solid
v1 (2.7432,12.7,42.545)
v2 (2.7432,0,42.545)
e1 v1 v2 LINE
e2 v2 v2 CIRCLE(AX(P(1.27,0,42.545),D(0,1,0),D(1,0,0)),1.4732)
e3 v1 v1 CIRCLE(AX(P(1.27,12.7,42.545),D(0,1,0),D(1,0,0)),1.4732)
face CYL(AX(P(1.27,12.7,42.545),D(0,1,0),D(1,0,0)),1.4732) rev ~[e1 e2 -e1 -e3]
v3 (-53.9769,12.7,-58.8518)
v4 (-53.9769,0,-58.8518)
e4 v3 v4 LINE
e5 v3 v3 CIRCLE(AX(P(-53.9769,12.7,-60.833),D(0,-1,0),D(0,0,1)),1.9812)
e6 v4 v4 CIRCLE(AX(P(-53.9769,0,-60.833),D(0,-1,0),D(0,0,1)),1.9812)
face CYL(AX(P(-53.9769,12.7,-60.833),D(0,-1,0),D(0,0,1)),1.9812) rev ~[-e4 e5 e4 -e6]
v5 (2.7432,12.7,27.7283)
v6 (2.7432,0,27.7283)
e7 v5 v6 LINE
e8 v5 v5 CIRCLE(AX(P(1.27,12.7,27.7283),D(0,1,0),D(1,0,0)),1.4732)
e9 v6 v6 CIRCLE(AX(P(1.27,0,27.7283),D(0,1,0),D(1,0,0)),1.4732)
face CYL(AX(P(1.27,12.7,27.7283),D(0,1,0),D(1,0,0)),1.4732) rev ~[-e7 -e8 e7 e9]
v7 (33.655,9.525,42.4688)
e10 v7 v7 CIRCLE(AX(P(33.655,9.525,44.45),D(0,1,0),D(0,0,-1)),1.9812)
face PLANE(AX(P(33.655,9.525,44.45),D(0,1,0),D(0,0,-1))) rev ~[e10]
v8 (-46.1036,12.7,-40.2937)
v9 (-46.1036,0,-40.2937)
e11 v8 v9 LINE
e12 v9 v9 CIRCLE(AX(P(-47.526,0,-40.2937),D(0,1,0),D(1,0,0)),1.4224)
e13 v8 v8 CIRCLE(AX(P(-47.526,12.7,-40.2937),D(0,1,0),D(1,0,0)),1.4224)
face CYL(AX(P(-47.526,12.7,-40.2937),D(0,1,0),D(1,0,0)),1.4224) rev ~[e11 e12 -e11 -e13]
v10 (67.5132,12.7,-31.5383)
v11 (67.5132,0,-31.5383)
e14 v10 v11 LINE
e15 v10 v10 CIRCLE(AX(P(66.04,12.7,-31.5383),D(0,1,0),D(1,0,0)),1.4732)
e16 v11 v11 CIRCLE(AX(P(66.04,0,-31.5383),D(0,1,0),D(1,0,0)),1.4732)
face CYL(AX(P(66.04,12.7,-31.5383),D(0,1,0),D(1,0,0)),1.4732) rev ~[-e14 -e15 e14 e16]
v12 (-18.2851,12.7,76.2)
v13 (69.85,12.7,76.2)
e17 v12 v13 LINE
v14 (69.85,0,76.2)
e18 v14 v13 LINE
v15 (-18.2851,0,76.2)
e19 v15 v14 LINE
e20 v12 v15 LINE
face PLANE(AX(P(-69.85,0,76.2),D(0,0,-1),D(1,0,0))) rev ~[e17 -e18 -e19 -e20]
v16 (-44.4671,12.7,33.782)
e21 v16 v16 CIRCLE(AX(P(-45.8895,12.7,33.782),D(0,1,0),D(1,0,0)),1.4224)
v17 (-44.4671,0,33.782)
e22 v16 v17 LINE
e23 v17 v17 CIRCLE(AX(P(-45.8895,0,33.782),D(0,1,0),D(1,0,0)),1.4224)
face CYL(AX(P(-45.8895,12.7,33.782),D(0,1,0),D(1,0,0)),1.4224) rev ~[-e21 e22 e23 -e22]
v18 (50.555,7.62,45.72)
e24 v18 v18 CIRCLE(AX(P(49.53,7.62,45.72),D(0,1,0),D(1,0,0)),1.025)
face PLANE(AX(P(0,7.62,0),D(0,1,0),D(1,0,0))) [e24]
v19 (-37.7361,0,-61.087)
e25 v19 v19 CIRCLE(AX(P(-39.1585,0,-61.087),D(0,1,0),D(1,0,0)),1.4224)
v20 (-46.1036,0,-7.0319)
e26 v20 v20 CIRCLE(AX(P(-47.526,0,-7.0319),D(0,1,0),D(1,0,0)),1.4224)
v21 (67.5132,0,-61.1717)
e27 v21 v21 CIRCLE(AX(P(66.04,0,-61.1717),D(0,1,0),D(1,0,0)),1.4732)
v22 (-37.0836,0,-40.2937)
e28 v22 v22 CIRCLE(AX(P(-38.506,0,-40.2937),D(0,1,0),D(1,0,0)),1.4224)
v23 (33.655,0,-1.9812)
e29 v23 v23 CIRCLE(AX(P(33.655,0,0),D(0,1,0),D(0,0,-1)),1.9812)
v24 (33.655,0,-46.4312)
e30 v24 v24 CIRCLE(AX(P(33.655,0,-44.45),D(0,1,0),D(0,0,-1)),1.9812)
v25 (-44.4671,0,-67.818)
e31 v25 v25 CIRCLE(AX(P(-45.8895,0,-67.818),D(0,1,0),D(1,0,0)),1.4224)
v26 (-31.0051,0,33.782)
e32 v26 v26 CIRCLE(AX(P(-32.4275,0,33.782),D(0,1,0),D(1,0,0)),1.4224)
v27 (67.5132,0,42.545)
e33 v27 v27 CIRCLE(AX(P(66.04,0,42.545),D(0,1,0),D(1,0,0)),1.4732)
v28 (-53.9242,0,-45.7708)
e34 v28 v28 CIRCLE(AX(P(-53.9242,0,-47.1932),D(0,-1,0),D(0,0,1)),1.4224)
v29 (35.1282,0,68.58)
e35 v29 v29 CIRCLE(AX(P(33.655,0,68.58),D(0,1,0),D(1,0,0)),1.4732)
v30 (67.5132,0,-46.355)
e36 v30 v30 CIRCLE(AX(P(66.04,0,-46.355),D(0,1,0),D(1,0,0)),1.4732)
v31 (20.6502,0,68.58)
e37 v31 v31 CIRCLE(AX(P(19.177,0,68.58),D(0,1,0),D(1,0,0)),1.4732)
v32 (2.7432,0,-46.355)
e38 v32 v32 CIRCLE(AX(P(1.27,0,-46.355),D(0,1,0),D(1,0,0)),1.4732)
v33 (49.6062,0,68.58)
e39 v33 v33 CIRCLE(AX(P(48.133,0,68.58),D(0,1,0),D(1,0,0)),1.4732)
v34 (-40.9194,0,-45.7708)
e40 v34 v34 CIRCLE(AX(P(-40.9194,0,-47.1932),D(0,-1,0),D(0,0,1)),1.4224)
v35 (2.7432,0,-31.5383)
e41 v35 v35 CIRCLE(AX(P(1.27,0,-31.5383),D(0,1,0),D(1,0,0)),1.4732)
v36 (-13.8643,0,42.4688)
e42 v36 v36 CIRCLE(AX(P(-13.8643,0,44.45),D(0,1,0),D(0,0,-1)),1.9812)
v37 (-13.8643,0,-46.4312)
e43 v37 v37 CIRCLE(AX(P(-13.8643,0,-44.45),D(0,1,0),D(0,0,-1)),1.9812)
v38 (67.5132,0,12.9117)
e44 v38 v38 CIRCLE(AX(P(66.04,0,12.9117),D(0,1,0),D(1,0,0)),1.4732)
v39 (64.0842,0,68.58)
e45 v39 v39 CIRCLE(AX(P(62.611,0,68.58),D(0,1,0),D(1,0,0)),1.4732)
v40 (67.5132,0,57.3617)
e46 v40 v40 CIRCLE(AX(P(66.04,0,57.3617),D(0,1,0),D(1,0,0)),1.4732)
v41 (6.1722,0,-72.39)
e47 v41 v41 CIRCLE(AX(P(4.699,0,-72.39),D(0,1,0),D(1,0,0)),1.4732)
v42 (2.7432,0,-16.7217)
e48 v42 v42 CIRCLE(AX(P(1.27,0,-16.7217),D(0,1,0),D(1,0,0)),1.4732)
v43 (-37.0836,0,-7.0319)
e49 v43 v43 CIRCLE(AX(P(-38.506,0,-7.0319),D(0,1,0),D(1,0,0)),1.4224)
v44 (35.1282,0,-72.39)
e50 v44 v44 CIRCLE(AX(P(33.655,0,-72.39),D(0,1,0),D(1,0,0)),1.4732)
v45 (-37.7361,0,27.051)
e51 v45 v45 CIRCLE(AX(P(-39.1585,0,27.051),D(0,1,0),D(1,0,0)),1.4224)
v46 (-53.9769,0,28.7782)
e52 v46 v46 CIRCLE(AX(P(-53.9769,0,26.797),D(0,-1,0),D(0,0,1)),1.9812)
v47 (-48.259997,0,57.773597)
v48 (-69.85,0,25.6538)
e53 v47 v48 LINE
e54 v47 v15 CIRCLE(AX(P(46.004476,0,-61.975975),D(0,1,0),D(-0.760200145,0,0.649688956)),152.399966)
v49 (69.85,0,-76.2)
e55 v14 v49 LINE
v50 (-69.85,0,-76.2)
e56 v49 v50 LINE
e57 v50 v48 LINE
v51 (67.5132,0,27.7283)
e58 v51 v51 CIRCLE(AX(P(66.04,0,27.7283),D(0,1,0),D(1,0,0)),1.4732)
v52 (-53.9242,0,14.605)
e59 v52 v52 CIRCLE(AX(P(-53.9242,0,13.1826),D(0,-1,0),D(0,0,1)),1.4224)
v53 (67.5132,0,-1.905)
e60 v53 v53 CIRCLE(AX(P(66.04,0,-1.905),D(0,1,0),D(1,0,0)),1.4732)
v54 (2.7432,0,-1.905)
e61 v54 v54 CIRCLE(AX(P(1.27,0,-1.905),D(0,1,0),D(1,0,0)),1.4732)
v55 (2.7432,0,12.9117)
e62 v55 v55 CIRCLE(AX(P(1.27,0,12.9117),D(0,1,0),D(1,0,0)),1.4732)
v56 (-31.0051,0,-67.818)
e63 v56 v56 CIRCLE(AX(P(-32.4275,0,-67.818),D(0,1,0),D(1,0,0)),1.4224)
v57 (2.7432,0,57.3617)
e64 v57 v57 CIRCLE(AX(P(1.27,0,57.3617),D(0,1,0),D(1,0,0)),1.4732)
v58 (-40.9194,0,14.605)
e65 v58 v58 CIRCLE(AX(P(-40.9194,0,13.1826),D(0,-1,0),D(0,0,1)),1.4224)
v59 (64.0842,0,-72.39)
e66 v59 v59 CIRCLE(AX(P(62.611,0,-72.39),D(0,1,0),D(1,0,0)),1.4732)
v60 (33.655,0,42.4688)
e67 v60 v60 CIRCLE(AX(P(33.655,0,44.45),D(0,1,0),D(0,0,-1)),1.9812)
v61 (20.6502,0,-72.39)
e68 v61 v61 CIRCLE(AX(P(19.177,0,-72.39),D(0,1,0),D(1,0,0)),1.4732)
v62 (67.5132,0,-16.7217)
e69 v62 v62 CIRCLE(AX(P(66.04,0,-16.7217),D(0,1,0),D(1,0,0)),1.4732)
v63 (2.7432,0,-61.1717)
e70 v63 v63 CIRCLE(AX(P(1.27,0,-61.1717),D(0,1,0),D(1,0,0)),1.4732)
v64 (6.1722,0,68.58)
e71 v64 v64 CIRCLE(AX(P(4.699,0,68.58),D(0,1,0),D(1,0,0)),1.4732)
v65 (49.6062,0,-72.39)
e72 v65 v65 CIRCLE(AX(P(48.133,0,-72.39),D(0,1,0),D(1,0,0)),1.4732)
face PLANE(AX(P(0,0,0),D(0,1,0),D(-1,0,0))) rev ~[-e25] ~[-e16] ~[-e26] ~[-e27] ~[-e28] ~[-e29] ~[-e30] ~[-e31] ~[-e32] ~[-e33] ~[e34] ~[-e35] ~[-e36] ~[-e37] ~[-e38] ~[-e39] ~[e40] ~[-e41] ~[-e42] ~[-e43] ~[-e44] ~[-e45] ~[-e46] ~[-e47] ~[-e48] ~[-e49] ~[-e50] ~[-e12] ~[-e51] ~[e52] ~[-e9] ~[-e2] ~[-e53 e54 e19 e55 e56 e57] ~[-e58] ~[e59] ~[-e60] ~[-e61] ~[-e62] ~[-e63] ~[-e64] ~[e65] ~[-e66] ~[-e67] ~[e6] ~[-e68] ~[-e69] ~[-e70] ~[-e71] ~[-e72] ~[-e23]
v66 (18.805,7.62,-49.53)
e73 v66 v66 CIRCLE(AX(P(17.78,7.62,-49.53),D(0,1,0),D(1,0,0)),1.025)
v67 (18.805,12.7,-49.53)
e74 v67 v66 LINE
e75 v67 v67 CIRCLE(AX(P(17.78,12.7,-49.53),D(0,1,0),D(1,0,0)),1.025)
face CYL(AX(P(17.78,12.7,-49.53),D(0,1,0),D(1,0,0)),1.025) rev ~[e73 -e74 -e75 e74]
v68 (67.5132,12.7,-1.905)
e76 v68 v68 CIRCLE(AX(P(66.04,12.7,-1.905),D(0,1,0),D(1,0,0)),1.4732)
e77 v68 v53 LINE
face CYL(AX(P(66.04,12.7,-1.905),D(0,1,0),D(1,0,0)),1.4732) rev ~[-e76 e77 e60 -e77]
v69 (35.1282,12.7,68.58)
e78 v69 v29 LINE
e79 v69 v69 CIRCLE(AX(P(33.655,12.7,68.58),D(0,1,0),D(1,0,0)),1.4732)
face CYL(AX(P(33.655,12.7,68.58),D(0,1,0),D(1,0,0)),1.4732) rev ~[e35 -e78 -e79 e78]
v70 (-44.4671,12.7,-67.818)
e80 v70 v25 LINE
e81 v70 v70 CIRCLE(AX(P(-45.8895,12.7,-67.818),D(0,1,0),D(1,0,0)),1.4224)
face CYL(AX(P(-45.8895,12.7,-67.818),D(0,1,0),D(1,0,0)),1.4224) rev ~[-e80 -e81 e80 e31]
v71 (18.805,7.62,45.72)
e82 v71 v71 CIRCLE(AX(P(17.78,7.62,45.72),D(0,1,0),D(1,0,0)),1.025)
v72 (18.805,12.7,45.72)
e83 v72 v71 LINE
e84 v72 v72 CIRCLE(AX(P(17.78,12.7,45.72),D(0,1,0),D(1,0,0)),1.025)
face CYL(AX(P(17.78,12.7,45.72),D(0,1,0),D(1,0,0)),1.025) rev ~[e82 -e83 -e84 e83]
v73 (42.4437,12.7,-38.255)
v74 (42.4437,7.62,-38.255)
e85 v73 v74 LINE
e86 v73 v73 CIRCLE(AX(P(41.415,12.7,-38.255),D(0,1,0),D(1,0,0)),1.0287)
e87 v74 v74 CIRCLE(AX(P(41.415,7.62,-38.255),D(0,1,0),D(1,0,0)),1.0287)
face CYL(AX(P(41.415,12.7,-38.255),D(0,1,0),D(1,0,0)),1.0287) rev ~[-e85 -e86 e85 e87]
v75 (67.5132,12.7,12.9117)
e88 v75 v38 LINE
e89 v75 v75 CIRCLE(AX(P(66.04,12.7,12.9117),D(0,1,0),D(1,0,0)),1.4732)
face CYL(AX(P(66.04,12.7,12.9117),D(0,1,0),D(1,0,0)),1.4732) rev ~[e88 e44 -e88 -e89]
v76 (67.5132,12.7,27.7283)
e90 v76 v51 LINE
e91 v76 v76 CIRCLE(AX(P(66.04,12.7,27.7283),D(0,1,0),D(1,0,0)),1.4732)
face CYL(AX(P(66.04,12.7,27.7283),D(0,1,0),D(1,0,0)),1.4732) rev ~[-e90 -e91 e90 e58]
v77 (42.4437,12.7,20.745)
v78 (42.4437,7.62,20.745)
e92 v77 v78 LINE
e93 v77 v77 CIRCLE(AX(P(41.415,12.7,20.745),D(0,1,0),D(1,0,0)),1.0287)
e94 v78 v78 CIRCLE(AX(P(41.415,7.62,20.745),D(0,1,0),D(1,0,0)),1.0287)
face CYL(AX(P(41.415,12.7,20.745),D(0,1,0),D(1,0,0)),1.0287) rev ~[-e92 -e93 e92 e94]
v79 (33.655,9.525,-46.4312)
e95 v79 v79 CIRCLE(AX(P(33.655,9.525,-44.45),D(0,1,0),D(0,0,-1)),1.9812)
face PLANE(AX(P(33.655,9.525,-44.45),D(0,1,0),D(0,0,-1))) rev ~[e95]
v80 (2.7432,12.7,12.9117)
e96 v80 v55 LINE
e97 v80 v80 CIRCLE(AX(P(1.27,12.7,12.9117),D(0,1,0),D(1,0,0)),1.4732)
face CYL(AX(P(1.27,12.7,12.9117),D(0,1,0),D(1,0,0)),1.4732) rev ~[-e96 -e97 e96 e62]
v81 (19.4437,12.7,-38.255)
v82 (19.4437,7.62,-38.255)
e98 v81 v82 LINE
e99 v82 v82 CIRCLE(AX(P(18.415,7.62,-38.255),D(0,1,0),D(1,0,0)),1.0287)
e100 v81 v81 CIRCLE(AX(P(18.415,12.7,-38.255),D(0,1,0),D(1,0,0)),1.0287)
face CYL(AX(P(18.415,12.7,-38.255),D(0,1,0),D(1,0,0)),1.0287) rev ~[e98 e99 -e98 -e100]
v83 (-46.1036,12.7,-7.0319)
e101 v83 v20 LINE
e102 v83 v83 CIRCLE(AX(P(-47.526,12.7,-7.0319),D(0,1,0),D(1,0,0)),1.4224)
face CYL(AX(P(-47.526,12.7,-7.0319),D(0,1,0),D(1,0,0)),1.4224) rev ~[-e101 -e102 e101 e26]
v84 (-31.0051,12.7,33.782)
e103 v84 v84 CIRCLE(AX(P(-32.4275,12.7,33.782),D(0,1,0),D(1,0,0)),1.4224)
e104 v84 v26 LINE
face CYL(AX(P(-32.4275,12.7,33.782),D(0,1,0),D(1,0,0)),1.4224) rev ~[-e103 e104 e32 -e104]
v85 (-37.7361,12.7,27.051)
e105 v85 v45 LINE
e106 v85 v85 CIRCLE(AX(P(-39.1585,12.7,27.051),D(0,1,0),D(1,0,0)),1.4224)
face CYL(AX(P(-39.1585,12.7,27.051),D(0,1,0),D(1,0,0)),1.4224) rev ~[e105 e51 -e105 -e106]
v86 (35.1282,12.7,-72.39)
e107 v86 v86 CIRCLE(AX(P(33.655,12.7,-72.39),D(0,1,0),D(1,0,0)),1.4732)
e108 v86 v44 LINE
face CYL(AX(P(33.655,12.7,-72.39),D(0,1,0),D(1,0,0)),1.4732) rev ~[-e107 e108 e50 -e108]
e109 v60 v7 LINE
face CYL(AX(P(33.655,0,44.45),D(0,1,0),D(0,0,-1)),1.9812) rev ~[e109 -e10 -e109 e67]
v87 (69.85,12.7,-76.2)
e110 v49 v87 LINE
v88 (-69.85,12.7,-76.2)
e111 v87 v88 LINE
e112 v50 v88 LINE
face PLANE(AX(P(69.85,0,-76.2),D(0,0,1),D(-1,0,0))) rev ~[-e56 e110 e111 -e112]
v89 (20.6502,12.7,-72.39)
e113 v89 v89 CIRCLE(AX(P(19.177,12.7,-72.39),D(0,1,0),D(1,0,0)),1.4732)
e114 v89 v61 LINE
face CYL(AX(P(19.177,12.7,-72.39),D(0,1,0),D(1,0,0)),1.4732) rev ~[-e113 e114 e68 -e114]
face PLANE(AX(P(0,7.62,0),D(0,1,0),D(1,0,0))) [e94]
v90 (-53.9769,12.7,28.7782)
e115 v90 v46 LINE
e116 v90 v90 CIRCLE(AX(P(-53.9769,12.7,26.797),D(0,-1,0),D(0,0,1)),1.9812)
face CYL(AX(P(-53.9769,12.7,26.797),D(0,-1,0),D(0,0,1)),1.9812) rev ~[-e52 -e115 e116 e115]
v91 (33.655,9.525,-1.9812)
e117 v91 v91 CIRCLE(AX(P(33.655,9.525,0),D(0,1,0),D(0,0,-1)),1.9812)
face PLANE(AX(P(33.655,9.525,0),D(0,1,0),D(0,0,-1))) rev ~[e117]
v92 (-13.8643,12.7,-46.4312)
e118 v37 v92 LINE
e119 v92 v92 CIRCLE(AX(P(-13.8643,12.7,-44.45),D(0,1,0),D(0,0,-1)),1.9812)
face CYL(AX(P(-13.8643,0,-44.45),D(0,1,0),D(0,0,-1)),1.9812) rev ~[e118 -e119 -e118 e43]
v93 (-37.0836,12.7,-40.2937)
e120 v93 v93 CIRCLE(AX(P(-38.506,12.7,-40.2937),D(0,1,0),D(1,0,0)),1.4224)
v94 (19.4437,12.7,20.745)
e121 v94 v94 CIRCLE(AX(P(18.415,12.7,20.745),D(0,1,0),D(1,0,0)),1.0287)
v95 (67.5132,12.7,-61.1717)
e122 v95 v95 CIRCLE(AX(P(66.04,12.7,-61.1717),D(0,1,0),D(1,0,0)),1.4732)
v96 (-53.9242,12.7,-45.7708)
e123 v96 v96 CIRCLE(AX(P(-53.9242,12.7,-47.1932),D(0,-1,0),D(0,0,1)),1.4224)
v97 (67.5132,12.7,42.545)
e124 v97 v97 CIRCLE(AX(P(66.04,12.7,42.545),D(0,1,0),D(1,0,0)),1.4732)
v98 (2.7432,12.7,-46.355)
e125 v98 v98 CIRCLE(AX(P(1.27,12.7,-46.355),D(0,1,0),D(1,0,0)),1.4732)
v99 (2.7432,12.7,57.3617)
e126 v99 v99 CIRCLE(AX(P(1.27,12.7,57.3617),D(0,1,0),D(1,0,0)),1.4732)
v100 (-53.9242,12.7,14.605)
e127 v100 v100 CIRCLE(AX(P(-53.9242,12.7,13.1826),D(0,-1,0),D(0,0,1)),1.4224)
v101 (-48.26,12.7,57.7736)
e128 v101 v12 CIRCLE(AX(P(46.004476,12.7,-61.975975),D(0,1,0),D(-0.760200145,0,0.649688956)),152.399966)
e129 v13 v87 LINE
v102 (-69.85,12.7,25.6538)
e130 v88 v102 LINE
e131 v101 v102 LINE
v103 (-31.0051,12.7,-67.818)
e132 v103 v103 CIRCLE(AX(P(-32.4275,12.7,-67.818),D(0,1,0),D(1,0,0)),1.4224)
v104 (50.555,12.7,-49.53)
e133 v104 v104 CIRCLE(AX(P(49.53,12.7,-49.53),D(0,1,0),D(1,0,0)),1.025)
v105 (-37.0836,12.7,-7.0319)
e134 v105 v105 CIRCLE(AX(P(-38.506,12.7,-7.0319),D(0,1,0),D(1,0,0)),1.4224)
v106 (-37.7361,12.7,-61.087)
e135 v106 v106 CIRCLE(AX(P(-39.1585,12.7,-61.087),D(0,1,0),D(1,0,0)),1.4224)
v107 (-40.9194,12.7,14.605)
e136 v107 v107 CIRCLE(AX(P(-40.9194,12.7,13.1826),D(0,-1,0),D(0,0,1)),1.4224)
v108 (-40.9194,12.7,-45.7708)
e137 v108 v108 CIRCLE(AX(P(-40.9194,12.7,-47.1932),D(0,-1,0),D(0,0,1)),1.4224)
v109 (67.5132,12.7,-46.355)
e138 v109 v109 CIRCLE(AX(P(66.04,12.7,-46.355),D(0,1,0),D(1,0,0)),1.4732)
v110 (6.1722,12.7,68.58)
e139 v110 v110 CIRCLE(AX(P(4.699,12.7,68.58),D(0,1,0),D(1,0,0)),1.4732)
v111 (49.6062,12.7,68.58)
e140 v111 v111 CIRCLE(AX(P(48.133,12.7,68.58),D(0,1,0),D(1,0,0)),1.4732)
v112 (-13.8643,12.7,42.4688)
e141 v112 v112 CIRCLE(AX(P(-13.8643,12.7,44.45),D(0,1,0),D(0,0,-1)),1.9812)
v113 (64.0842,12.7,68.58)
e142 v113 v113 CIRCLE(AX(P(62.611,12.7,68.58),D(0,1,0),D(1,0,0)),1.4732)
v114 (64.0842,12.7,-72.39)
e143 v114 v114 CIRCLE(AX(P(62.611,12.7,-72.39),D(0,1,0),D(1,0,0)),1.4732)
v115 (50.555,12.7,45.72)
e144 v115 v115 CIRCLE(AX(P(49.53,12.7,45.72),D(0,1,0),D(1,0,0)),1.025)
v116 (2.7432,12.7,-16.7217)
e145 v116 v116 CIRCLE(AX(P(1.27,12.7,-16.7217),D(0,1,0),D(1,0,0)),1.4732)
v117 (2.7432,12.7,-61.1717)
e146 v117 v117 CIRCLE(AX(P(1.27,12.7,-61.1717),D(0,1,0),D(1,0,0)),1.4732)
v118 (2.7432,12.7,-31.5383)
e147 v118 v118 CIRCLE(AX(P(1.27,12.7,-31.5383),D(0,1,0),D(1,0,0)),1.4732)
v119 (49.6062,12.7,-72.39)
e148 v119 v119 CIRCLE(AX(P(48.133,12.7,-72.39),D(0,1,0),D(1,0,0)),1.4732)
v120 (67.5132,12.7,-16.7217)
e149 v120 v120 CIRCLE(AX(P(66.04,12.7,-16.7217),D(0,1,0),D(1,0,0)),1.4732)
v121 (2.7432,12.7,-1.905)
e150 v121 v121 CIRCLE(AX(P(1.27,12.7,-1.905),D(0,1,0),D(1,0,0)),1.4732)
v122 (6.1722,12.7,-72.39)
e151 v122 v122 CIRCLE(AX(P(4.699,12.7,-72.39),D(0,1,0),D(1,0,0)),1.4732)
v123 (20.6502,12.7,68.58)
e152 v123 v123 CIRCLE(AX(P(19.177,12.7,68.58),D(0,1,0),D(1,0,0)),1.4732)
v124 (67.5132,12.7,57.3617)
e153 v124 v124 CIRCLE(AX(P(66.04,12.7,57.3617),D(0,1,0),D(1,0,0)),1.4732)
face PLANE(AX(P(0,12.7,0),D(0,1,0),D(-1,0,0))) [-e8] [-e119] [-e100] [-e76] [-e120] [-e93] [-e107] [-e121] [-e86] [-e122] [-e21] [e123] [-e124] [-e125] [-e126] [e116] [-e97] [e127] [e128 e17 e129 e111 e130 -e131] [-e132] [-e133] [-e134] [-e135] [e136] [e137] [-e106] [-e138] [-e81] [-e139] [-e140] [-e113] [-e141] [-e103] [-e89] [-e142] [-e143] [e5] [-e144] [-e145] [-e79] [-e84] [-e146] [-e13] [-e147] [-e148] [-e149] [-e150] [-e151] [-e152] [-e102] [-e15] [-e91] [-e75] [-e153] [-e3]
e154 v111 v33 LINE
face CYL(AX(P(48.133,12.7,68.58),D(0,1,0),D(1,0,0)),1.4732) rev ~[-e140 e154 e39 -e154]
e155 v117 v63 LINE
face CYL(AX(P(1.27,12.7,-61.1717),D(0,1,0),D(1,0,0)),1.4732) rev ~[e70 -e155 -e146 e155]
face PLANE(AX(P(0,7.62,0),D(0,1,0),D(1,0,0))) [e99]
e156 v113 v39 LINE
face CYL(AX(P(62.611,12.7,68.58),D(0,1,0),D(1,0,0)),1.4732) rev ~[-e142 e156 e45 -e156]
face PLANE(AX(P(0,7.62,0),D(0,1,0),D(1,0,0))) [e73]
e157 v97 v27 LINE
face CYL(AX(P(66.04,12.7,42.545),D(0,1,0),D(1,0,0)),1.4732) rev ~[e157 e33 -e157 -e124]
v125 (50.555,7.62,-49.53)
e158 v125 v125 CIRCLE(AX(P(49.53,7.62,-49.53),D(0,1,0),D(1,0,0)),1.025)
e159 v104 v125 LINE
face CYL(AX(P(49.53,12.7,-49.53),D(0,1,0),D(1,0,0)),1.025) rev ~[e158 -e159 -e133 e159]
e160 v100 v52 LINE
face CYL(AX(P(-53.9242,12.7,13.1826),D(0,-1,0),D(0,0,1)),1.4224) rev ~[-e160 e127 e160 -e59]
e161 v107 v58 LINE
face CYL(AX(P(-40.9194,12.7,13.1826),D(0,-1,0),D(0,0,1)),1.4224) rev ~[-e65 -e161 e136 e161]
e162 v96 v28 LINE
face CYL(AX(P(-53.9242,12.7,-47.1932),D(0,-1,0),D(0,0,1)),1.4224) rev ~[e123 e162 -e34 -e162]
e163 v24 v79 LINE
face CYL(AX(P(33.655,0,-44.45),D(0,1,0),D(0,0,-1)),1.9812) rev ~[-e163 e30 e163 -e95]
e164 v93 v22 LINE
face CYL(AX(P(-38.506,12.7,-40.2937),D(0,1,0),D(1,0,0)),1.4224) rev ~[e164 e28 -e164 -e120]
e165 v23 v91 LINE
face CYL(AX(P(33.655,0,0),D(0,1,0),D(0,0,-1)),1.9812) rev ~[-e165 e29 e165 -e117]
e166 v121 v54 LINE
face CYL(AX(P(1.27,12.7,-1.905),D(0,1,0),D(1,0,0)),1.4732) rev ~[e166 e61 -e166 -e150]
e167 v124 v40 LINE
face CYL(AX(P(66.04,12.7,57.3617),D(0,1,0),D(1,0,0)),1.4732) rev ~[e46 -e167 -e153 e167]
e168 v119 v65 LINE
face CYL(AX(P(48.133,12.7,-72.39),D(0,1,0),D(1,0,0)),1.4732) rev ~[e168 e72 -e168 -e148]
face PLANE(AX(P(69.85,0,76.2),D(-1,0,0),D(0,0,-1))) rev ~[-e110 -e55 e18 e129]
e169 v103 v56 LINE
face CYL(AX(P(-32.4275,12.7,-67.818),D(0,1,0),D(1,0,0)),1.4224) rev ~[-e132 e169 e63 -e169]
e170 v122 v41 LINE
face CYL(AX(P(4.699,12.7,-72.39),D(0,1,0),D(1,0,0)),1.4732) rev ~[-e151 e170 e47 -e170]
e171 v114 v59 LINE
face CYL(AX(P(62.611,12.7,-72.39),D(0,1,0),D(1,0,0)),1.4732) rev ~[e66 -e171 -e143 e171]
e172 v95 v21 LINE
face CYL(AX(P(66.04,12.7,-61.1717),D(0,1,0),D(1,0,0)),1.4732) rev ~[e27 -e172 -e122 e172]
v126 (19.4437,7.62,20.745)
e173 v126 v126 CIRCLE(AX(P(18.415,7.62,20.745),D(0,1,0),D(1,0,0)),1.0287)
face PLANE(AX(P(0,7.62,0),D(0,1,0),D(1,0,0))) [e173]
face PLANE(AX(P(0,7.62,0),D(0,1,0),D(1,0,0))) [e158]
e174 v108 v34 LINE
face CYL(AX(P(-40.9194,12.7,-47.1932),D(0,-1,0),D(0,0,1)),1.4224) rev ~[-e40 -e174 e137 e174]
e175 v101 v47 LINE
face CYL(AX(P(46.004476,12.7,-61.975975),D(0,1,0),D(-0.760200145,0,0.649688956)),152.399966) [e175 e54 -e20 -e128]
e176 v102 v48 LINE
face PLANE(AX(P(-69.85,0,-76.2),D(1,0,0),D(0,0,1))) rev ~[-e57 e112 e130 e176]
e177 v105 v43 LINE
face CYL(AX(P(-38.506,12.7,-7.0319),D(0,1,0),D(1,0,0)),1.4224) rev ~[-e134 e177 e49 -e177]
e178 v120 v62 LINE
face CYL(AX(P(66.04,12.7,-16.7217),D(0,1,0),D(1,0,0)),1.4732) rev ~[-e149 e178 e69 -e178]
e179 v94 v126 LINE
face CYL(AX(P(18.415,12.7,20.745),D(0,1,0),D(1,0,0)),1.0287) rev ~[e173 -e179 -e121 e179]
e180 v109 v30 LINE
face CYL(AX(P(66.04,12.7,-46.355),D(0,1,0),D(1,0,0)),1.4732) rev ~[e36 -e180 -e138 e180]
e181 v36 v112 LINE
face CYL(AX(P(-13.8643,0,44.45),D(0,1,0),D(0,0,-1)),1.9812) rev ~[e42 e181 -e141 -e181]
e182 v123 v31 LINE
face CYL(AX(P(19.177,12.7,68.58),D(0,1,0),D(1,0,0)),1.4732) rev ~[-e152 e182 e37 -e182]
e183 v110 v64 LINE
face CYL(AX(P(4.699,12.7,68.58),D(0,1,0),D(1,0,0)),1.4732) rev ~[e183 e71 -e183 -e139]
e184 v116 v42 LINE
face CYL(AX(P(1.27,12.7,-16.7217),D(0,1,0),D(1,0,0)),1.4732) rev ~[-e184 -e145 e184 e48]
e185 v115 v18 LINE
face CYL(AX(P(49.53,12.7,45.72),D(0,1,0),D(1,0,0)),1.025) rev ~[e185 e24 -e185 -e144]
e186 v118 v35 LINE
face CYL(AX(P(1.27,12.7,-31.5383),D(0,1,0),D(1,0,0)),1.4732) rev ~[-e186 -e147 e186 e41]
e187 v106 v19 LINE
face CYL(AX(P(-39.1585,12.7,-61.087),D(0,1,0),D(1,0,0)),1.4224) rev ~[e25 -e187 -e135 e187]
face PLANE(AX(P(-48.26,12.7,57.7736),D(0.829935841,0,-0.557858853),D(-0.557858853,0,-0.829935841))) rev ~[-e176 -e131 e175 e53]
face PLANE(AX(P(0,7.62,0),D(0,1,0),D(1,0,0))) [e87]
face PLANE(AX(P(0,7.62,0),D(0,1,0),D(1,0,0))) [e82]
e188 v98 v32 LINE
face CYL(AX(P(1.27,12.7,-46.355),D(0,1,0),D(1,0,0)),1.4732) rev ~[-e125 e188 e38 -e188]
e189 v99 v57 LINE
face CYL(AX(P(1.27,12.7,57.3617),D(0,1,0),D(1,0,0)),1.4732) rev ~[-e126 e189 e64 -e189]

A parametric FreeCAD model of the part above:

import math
import FreeCAD as App
import Part
import Sketcher

V = App.Vector
Q = App.Units.Quantity


def add_polygon(sketch, points):
    """Adds a closed chain of lines whose ends are joined by coincident constraints."""
    first, n = sketch.GeometryCount, len(points)
    for a, b in zip(points, points[1:] + points[:1]):
        sketch.addGeometry(Part.LineSegment(App.Vector(*a, 0), App.Vector(*b, 0)), False)
    for i in range(n):
        sketch.addConstraint(Sketcher.Constraint("Coincident", first + i, 2, first + (i + 1) % n, 1))

doc = App.newDocument("Part")
body = doc.addObject("PartDesign::Body", "Body")

sketch1 = doc.addObject("Sketcher::SketchObject", "Sketch")
body.addObject(sketch1)
sketch1.AttachmentSupport = (doc.XZ_Plane, [""])
sketch1.MapMode = "FlatFace"
add_polygon(sketch1, [(-70, -76), (-70, 76), (70, 76), (70, -76)])
sketch1.addConstraint([
    Sketcher.Constraint("Vertical", 0),
    Sketcher.Constraint("Horizontal", 1),
    Sketcher.Constraint("Vertical", 2),
    Sketcher.Constraint("Horizontal", 3),
    Sketcher.Constraint("Symmetric", 0, 2, 2, 2, -1, 1),
    Sketcher.Constraint("DistanceY", 0, 1, 0, 2, Q("6 in")),
    Sketcher.Constraint("DistanceX", 1, 1, 1, 2, Q("5.5 in")),
])
pad1 = doc.addObject("PartDesign::Pad", "Pad")
body.addObject(pad1)
pad1.Profile = sketch1
pad1.Length = Q("0.5 in")
pad1.Reversed = True

sketch2 = doc.addObject("Sketcher::SketchObject", "Sketch001")
body.addObject(sketch2)
sketch2.AttachmentSupport = (doc.XZ_Plane, [""])
sketch2.MapMode = "FlatFace"
sketch2.AttachmentOffset = App.Placement(V(0, 0, -0.5 * 25.4), App.Rotation())
sketch2.addGeometry([
    Part.Circle(V(-47.5, -7, 0), V(0, 0, 1), 1.4),
    Part.Circle(V(-38.5, -7, 0), V(0, 0, 1), 1.4),
    Part.Circle(V(-47.5, -40.3, 0), V(0, 0, 1), 1.4),
    Part.Circle(V(-38.5, -40.3, 0), V(0, 0, 1), 1.4),
    Part.Circle(V(-32.4, 33.8, 0), V(0, 0, 1), 1.4),
    Part.Circle(V(-39.2, 27.1, 0), V(0, 0, 1), 1.4),
    Part.Circle(V(-45.9, 33.8, 0), V(0, 0, 1), 1.4),
    Part.Circle(V(-45.9, -67.8, 0), V(0, 0, 1), 1.4),
    Part.Circle(V(-39.2, -61.1, 0), V(0, 0, 1), 1.4),
    Part.Circle(V(-32.4, -67.8, 0), V(0, 0, 1), 1.4),
], False)
sketch2.addConstraint([
    Sketcher.Constraint("Equal", 0, 1),
    Sketcher.Constraint("Equal", 1, 2),
    Sketcher.Constraint("Equal", 2, 3),
    Sketcher.Constraint("Equal", 3, 4),
    Sketcher.Constraint("Equal", 4, 5),
    Sketcher.Constraint("Equal", 5, 6),
    Sketcher.Constraint("Equal", 6, 7),
    Sketcher.Constraint("Equal", 7, 8),
    Sketcher.Constraint("Equal", 8, 9),
    Sketcher.Constraint("Horizontal", 0, 3, 1, 3),
    Sketcher.Constraint("Horizontal", 2, 3, 3, 3),
    Sketcher.Constraint("Horizontal", 4, 3, 6, 3),
    Sketcher.Constraint("Horizontal", 7, 3, 9, 3),
    Sketcher.Constraint("Vertical", 0, 3, 2, 3),
    Sketcher.Constraint("Vertical", 1, 3, 3, 3),
    Sketcher.Constraint("Vertical", 6, 3, 7, 3),
    Sketcher.Constraint("Vertical", 5, 3, 8, 3),
    Sketcher.Constraint("Vertical", 4, 3, 9, 3),
    Sketcher.Constraint("Diameter", 0, Q("0.112 in")),
    Sketcher.Constraint("DistanceY", -1, 1, 4, 3, Q("1.33 in")),
    Sketcher.Constraint("DistanceY", 7, 3, -1, 1, Q("2.67 in")),
    Sketcher.Constraint("DistanceX", 6, 3, 4, 3, Q("0.53 in")),
    Sketcher.Constraint("DistanceY", -1, 1, 5, 3, Q("1.065 in")),
    Sketcher.Constraint("DistanceY", 8, 3, -1, 1, Q("2.405 in")),
    Sketcher.Constraint("DistanceX", 5, 3, 4, 3, Q("0.265 in")),
    Sketcher.Constraint("DistanceX", 0, 3, -1, 1, Q("1.8711 in")),
    Sketcher.Constraint("DistanceX", 1, 3, 4, 3, Q("0.2393 in")),
    Sketcher.Constraint("DistanceY", 0, 3, -1, 1, Q("7.032 mm")),
    Sketcher.Constraint("DistanceX", 1, 3, -1, 1, Q("38.506 mm")),
    Sketcher.Constraint("DistanceY", 2, 3, -1, 1, Q("40.2937 mm")),
])
pocket1 = doc.addObject("PartDesign::Pocket", "Pocket")
body.addObject(pocket1)
pocket1.Profile = sketch2
pocket1.Type = "ThroughAll"
pocket1.Reversed = True

sketch3 = doc.addObject("Sketcher::SketchObject", "Sketch002")
body.addObject(sketch3)
sketch3.AttachmentSupport = (doc.XZ_Plane, [""])
sketch3.MapMode = "FlatFace"
sketch3.AttachmentOffset = App.Placement(V(0, 0, -0.5 * 25.4), App.Rotation())
sketch3.addGeometry([
    Part.ArcOfCircle(Part.Circle(V(46, -62, 0), V(0, 0, 1), 152), math.radians(115), math.radians(139)),
    Part.LineSegment(V(-70, 37, 0), V(-70, 76, 0)),
    Part.LineSegment(V(-70, 76, 0), V(-18, 76, 0)),
], False)
sketch3.addConstraint([
    Sketcher.Constraint("Coincident", 0, 2, 1, 1),
    Sketcher.Constraint("Coincident", 1, 2, 2, 1),
    Sketcher.Constraint("Coincident", 2, 2, 0, 1),
    Sketcher.Constraint("Vertical", 1),
    Sketcher.Constraint("Horizontal", 2),
    Sketcher.Constraint("Radius", 0, Q("6 in")),
    Sketcher.Constraint("DistanceY", -1, 1, 1, 2, Q("3 in")),
    Sketcher.Constraint("DistanceY", 0, 3, -1, 1, Q("2.44 in")),
    Sketcher.Constraint("DistanceX", 0, 2, -1, 1, Q("2.75 in")),
    Sketcher.Constraint("DistanceX", 2, 1, 2, 2, Q("51.565 mm")),
])
pocket2 = doc.addObject("PartDesign::Pocket", "Pocket001")
body.addObject(pocket2)
pocket2.Profile = sketch3
pocket2.Type = "ThroughAll"
pocket2.Reversed = True

sketch4 = doc.addObject("Sketcher::SketchObject", "Sketch003")
body.addObject(sketch4)
sketch4.AttachmentSupport = (doc.XZ_Plane, [""])
sketch4.MapMode = "FlatFace"
sketch4.AttachmentOffset = App.Placement(V(0, 0, -0.5 * 25.4), App.Rotation())
sketch4.addGeometry([
    Part.Circle(V(62.6, -72.4, 0), V(0, 0, 1), 1.5),
    Part.Circle(V(33.7, -72.4, 0), V(0, 0, 1), 1.5),
    Part.Circle(V(48.1, -72.4, 0), V(0, 0, 1), 1.5),
    Part.Circle(V(19.2, -72.4, 0), V(0, 0, 1), 1.5),
    Part.Circle(V(4.7, -72.4, 0), V(0, 0, 1), 1.5),
    Part.Circle(V(62.6, 68.6, 0), V(0, 0, 1), 1.5),
    Part.Circle(V(48.1, 68.6, 0), V(0, 0, 1), 1.5),
    Part.Circle(V(33.7, 68.6, 0), V(0, 0, 1), 1.5),
    Part.Circle(V(19.2, 68.6, 0), V(0, 0, 1), 1.5),
    Part.Circle(V(4.7, 68.6, 0), V(0, 0, 1), 1.5),
], False)
sketch4.addConstraint([
    Sketcher.Constraint("Equal", 0, 1),
    Sketcher.Constraint("Equal", 1, 2),
    Sketcher.Constraint("Equal", 2, 3),
    Sketcher.Constraint("Equal", 3, 4),
    Sketcher.Constraint("Equal", 4, 5),
    Sketcher.Constraint("Equal", 5, 6),
    Sketcher.Constraint("Equal", 6, 7),
    Sketcher.Constraint("Equal", 7, 8),
    Sketcher.Constraint("Equal", 8, 9),
    Sketcher.Constraint("Horizontal", 0, 3, 1, 3),
    Sketcher.Constraint("Horizontal", 1, 3, 2, 3),
    Sketcher.Constraint("Horizontal", 2, 3, 3, 3),
    Sketcher.Constraint("Horizontal", 3, 3, 4, 3),
    Sketcher.Constraint("Horizontal", 5, 3, 6, 3),
    Sketcher.Constraint("Horizontal", 6, 3, 7, 3),
    Sketcher.Constraint("Horizontal", 7, 3, 8, 3),
    Sketcher.Constraint("Horizontal", 8, 3, 9, 3),
    Sketcher.Constraint("Vertical", 0, 3, 5, 3),
    Sketcher.Constraint("Vertical", 2, 3, 6, 3),
    Sketcher.Constraint("Vertical", 1, 3, 7, 3),
    Sketcher.Constraint("Vertical", 3, 3, 8, 3),
    Sketcher.Constraint("Vertical", 4, 3, 9, 3),
    Sketcher.Constraint("Diameter", 0, Q("0.116 in")),
    Sketcher.Constraint("DistanceY", -1, 1, 5, 3, Q("2.7 in")),
    Sketcher.Constraint("DistanceY", 0, 3, -1, 1, Q("2.85 in")),
    Sketcher.Constraint("DistanceX", 1, 3, 0, 3, Q("1.14 in")),
    Sketcher.Constraint("DistanceX", 2, 3, 0, 3, Q("0.57 in")),
    Sketcher.Constraint("DistanceX", 3, 3, 1, 3, Q("0.57 in")),
    Sketcher.Constraint("DistanceX", 4, 3, 3, 3, Q("0.57 in")),
    Sketcher.Constraint("DistanceX", -1, 1, 0, 3, Q("2.465 in")),
])
pocket3 = doc.addObject("PartDesign::Pocket", "Pocket002")
body.addObject(pocket3)
pocket3.Profile = sketch4
pocket3.Type = "ThroughAll"
pocket3.Reversed = True

sketch5 = doc.addObject("Sketcher::SketchObject", "Sketch004")
body.addObject(sketch5)
sketch5.AttachmentSupport = (doc.XZ_Plane, [""])
sketch5.MapMode = "FlatFace"
sketch5.AttachmentOffset = App.Placement(V(0, 0, -0.5 * 25.4), App.Rotation())
sketch5.addGeometry([
    Part.Circle(V(1.3, 42.5, 0), V(0, 0, 1), 1.5),
    Part.Circle(V(1.3, 12.9, 0), V(0, 0, 1), 1.5),
    Part.Circle(V(1.3, -16.7, 0), V(0, 0, 1), 1.5),
    Part.Circle(V(1.3, -46.4, 0), V(0, 0, 1), 1.5),
    Part.Circle(V(66, -61.2, 0), V(0, 0, 1), 1.5),
    Part.Circle(V(66, -31.5, 0), V(0, 0, 1), 1.5),
    Part.Circle(V(66, -1.9, 0), V(0, 0, 1), 1.5),
    Part.Circle(V(66, 27.7, 0), V(0, 0, 1), 1.5),
    Part.Circle(V(66, 57.4, 0), V(0, 0, 1), 1.5),
    Part.Circle(V(66, 42.5, 0), V(0, 0, 1), 1.5),
    Part.Circle(V(66, 12.9, 0), V(0, 0, 1), 1.5),
    Part.Circle(V(66, -16.7, 0), V(0, 0, 1), 1.5),
    Part.Circle(V(66, -46.4, 0), V(0, 0, 1), 1.5),
    Part.Circle(V(1.3, -61.2, 0), V(0, 0, 1), 1.5),
    Part.Circle(V(1.3, -31.5, 0), V(0, 0, 1), 1.5),
    Part.Circle(V(1.3, -1.9, 0), V(0, 0, 1), 1.5),
    Part.Circle(V(1.3, 27.7, 0), V(0, 0, 1), 1.5),
    Part.Circle(V(1.3, 57.4, 0), V(0, 0, 1), 1.5),
    Part.Circle(V(62.6, -72.4, 0), V(0, 0, 1), 1.5),
], False)
sketch5.addConstraint([
    Sketcher.Constraint("Equal", 0, 1),
    Sketcher.Constraint("Equal", 1, 2),
    Sketcher.Constraint("Equal", 2, 3),
    Sketcher.Constraint("Equal", 3, 4),
    Sketcher.Constraint("Equal", 4, 5),
    Sketcher.Constraint("Equal", 5, 6),
    Sketcher.Constraint("Equal", 6, 7),
    Sketcher.Constraint("Equal", 7, 8),
    Sketcher.Constraint("Equal", 8, 9),
    Sketcher.Constraint("Equal", 9, 10),
    Sketcher.Constraint("Equal", 10, 11),
    Sketcher.Constraint("Equal", 11, 12),
    Sketcher.Constraint("Equal", 12, 13),
    Sketcher.Constraint("Equal", 13, 14),
    Sketcher.Constraint("Equal", 14, 15),
    Sketcher.Constraint("Equal", 15, 16),
    Sketcher.Constraint("Equal", 16, 17),
    Sketcher.Constraint("Equal", 17, 18),
    Sketcher.Constraint("Horizontal", 0, 3, 9, 3),
    Sketcher.Constraint("Horizontal", 1, 3, 10, 3),
    Sketcher.Constraint("Horizontal", 2, 3, 11, 3),
    Sketcher.Constraint("Horizontal", 3, 3, 12, 3),
    Sketcher.Constraint("Horizontal", 4, 3, 13, 3),
    Sketcher.Constraint("Horizontal", 5, 3, 14, 3),
    Sketcher.Constraint("Horizontal", 6, 3, 15, 3),
    Sketcher.Constraint("Horizontal", 7, 3, 16, 3),
    Sketcher.Constraint("Horizontal", 8, 3, 17, 3),
    Sketcher.Constraint("Vertical", 0, 3, 1, 3),
    Sketcher.Constraint("Vertical", 1, 3, 2, 3),
    Sketcher.Constraint("Vertical", 2, 3, 3, 3),
    Sketcher.Constraint("Vertical", 4, 3, 5, 3),
    Sketcher.Constraint("Vertical", 5, 3, 6, 3),
    Sketcher.Constraint("Vertical", 6, 3, 7, 3),
    Sketcher.Constraint("Vertical", 7, 3, 8, 3),
    Sketcher.Constraint("Vertical", 8, 3, 9, 3),
    Sketcher.Constraint("Vertical", 9, 3, 10, 3),
    Sketcher.Constraint("Vertical", 10, 3, 11, 3),
    Sketcher.Constraint("Vertical", 11, 3, 12, 3),
    Sketcher.Constraint("Vertical", 3, 3, 13, 3),
    Sketcher.Constraint("Vertical", 13, 3, 14, 3),
    Sketcher.Constraint("Vertical", 14, 3, 15, 3),
    Sketcher.Constraint("Vertical", 15, 3, 16, 3),
    Sketcher.Constraint("Vertical", 16, 3, 17, 3),
    Sketcher.Constraint("Diameter", 0, Q("0.116 in")),
    Sketcher.Constraint("DistanceX", -1, 1, 4, 3, Q("2.6 in")),
    Sketcher.Constraint("DistanceY", 3, 3, 0, 3, Q("3.5 in")),
    Sketcher.Constraint("DistanceY", 5, 3, 8, 3, Q("3.5 in")),
    Sketcher.Constraint("DistanceX", -1, 1, 0, 3, Q("0.05 in")),
    Sketcher.Constraint("DistanceY", 18, 3, -1, 1, Q("2.85 in")),
    Sketcher.Constraint("DistanceY", 4, 3, 2, 3, Q("1.75 in")),
    Sketcher.Constraint("DistanceY", 5, 3, 1, 3, Q("1.75 in")),
    Sketcher.Constraint("DistanceY", 3, 3, 6, 3, Q("1.75 in")),
    Sketcher.Constraint("DistanceY", 2, 3, 7, 3, Q("1.75 in")),
    Sketcher.Constraint("DistanceY", -1, 1, 0, 3, Q("1.675 in")),
    Sketcher.Constraint("DistanceX", -1, 1, 18, 3, Q("2.465 in")),
    Sketcher.Constraint("DistanceY", -1, 1, 1, 3, Q("12.9117 mm")),
    Sketcher.Constraint("DistanceY", 2, 3, -1, 1, Q("16.7217 mm")),
])
pocket4 = doc.addObject("PartDesign::Pocket", "Pocket003")
body.addObject(pocket4)
pocket4.Profile = sketch5
pocket4.Type = "ThroughAll"
pocket4.Reversed = True

sketch6 = doc.addObject("Sketcher::SketchObject", "Sketch005")
body.addObject(sketch6)
sketch6.AttachmentSupport = (doc.XZ_Plane, [""])
sketch6.MapMode = "FlatFace"
sketch6.addGeometry([
    Part.Circle(V(-13.9, 44.5, 0), V(0, 0, 1), 2),
    Part.Circle(V(-13.9, -44.5, 0), V(0, 0, 1), 2),
], False)
sketch6.addConstraint([
    Sketcher.Constraint("Equal", 0, 1),
    Sketcher.Constraint("Symmetric", 0, 3, 1, 3, -1),
    Sketcher.Constraint("Diameter", 0, Q("0.156 in")),
    Sketcher.Constraint("DistanceY", 1, 3, 0, 3, Q("3.5 in")),
    Sketcher.Constraint("DistanceX", 0, 3, -1, 1, Q("13.8643 mm")),
])
doc.recompute()
hole = doc.addObject("PartDesign::Hole", "Hole")
body.addObject(hole)
hole.Profile = sketch6
hole.ThreadType = "None"
hole.Diameter = Q("0.156 in")
hole.DepthType = "ThroughAll"

sketch7 = doc.addObject("Sketcher::SketchObject", "Sketch006")
body.addObject(sketch7)
sketch7.AttachmentSupport = (doc.XZ_Plane, [""])
sketch7.MapMode = "FlatFace"
sketch7.addGeometry([
    Part.Circle(V(33.7, -44.5, 0), V(0, 0, 1), 2),
    Part.Circle(V(33.7, 44.5, 0), V(0, 0, 1), 2),
    Part.Circle(V(33.7, 0, 0), V(0, 0, 1), 2),
], False)
sketch7.addConstraint([
    Sketcher.Constraint("Equal", 0, 1),
    Sketcher.Constraint("Equal", 1, 2),
    Sketcher.Constraint("Symmetric", 0, 3, 1, 3, -1),
    Sketcher.Constraint("PointOnObject", 2, 3, -1),
    Sketcher.Constraint("Vertical", 1, 3, 2, 3),
    Sketcher.Constraint("Diameter", 0, Q("0.156 in")),
    Sketcher.Constraint("DistanceY", 0, 3, 1, 3, Q("3.5 in")),
    Sketcher.Constraint("DistanceX", -1, 1, 0, 3, Q("1.325 in")),
])
doc.recompute()
hole2 = doc.addObject("PartDesign::Hole", "Hole001")
body.addObject(hole2)
hole2.Profile = sketch7
hole2.ThreadType = "None"
hole2.Diameter = Q("0.156 in")
hole2.DepthType = "Dimension"
hole2.Depth = Q("0.375 in")
hole2.DrillPoint = "Flat"

sketch8 = doc.addObject("Sketcher::SketchObject", "Sketch007")
body.addObject(sketch8)
sketch8.AttachmentSupport = (doc.XZ_Plane, [""])
sketch8.MapMode = "FlatFace"
sketch8.AttachmentOffset = App.Placement(V(0, 0, -0.5 * 25.4), App.Rotation())
sketch8.addGeometry([
    Part.ArcOfCircle(Part.Circle(V(46, -62, 0), V(0, 0, 1), 152), math.radians(128.21), math.radians(139.48)),
    Part.LineSegment(V(-48, 58, 0), V(-70, 26, 0)),
    Part.LineSegment(V(-70, 26, 0), V(-70, 37, 0)),
], False)
sketch8.addConstraint([
    Sketcher.Constraint("Coincident", 0, 1, 1, 1),
    Sketcher.Constraint("Coincident", 1, 2, 2, 1),
    Sketcher.Constraint("Coincident", 2, 2, 0, 2),
    Sketcher.Constraint("Vertical", 2),
    Sketcher.Constraint("Radius", 0, Q("6 in")),
    Sketcher.Constraint("DistanceX", 1, 2, 0, 1, Q("0.85 in")),
    Sketcher.Constraint("DistanceX", 0, 1, -1, 1, Q("1.9 in")),
    Sketcher.Constraint("DistanceY", 0, 3, -1, 1, Q("2.44 in")),
    Sketcher.Constraint("DistanceY", -1, 1, 1, 2, Q("1.01 in")),
    Sketcher.Constraint("DistanceY", 2, 1, 2, 2, Q("11.3828 mm")),
])
pocket5 = doc.addObject("PartDesign::Pocket", "Pocket004")
body.addObject(pocket5)
pocket5.Profile = sketch8
pocket5.Type = "ThroughAll"
pocket5.Reversed = True

sketch9 = doc.addObject("Sketcher::SketchObject", "Sketch008")
body.addObject(sketch9)
sketch9.AttachmentSupport = (doc.XZ_Plane, [""])
sketch9.MapMode = "FlatFace"
sketch9.AttachmentOffset = App.Placement(V(0, 0, -0.5 * 25.4), App.Rotation())
sketch9.addGeometry([
    Part.Circle(V(-54, -60.8, 0), V(0, 0, 1), 2),
    Part.Circle(V(-54, 26.8, 0), V(0, 0, 1), 2),
], False)
sketch9.addConstraint([
    Sketcher.Constraint("Equal", 0, 1),
    Sketcher.Constraint("Vertical", 0, 3, 1, 3),
    Sketcher.Constraint("Diameter", 0, Q("0.156 in")),
    Sketcher.Constraint("DistanceY", 0, 3, 1, 3, Q("3.45 in")),
    Sketcher.Constraint("DistanceY", 0, 3, -1, 1, Q("2.395 in")),
    Sketcher.Constraint("DistanceX", 0, 3, -1, 1, Q("53.977 mm")),
])
doc.recompute()
hole3 = doc.addObject("PartDesign::Hole", "Hole002")
body.addObject(hole3)
hole3.Profile = sketch9
hole3.ThreadType = "None"
hole3.Diameter = Q("0.156 in")
hole3.DepthType = "Dimension"
hole3.Depth = Q("0.5 in")
hole3.DrillPoint = "Flat"
hole3.Reversed = True

sketch10 = doc.addObject("Sketcher::SketchObject", "Sketch009")
body.addObject(sketch10)
sketch10.AttachmentSupport = (doc.XZ_Plane, [""])
sketch10.MapMode = "FlatFace"
sketch10.AttachmentOffset = App.Placement(V(0, 0, -0.5 * 25.4), App.Rotation())
sketch10.addGeometry([
    Part.Circle(V(-53.9, 13.2, 0), V(0, 0, 1), 1.4),
    Part.Circle(V(-40.9, 13.2, 0), V(0, 0, 1), 1.4),
    Part.Circle(V(-53.9, -47.2, 0), V(0, 0, 1), 1.4),
    Part.Circle(V(-40.9, -47.2, 0), V(0, 0, 1), 1.4),
], False)
sketch10.addConstraint([
    Sketcher.Constraint("Equal", 0, 1),
    Sketcher.Constraint("Equal", 1, 2),
    Sketcher.Constraint("Equal", 2, 3),
    Sketcher.Constraint("Horizontal", 0, 3, 1, 3),
    Sketcher.Constraint("Horizontal", 2, 3, 3, 3),
    Sketcher.Constraint("Vertical", 0, 3, 2, 3),
    Sketcher.Constraint("Vertical", 1, 3, 3, 3),
    Sketcher.Constraint("Diameter", 0, Q("0.112 in")),
    Sketcher.Constraint("DistanceX", 0, 3, -1, 1, Q("2.123 in")),
    Sketcher.Constraint("DistanceY", -1, 1, 0, 3, Q("0.519 in")),
    Sketcher.Constraint("DistanceX", 1, 3, -1, 1, Q("1.611 in")),
    Sketcher.Constraint("DistanceY", 2, 3, -1, 1, Q("1.858 in")),
])
doc.recompute()
hole4 = doc.addObject("PartDesign::Hole", "Hole003")
body.addObject(hole4)
hole4.Profile = sketch10
hole4.ThreadType = "None"
hole4.Diameter = Q("0.112 in")
hole4.DepthType = "ThroughAll"
hole4.Reversed = True

sketch11 = doc.addObject("Sketcher::SketchObject", "Sketch010")
body.addObject(sketch11)
sketch11.AttachmentSupport = (doc.XZ_Plane, [""])
sketch11.MapMode = "FlatFace"
sketch11.AttachmentOffset = App.Placement(V(0, 0, -0.5 * 25.4), App.Rotation())
sketch11.addGeometry([
    Part.Circle(V(49.5, -49.5, 0), V(0, 0, 1), 1),
    Part.Circle(V(49.5, 45.7, 0), V(0, 0, 1), 1),
    Part.Circle(V(17.8, -49.5, 0), V(0, 0, 1), 1),
    Part.Circle(V(17.8, 45.7, 0), V(0, 0, 1), 1),
    Part.Circle(V(18.4, 20.7, 0), V(0, 0, 1), 1),
    Part.Circle(V(18.4, -38.3, 0), V(0, 0, 1), 1),
    Part.Circle(V(41.4, 20.7, 0), V(0, 0, 1), 1),
    Part.Circle(V(41.4, -38.3, 0), V(0, 0, 1), 1),
], False)
sketch11.addConstraint([
    Sketcher.Constraint("Equal", 0, 1),
    Sketcher.Constraint("Equal", 1, 2),
    Sketcher.Constraint("Equal", 2, 3),
    Sketcher.Constraint("Equal", 4, 5),
    Sketcher.Constraint("Equal", 5, 6),
    Sketcher.Constraint("Equal", 6, 7),
    Sketcher.Constraint("Horizontal", 0, 3, 2, 3),
    Sketcher.Constraint("Horizontal", 1, 3, 3, 3),
    Sketcher.Constraint("Horizontal", 4, 3, 6, 3),
    Sketcher.Constraint("Horizontal", 5, 3, 7, 3),
    Sketcher.Constraint("Vertical", 0, 3, 1, 3),
    Sketcher.Constraint("Vertical", 2, 3, 3, 3),
    Sketcher.Constraint("Vertical", 4, 3, 5, 3),
    Sketcher.Constraint("Vertical", 6, 3, 7, 3),
    Sketcher.Constraint("Diameter", 4, Q("0.081 in")),
    Sketcher.Constraint("Diameter", 0, Q("0.0807 in")),
    Sketcher.Constraint("DistanceY", 0, 3, 1, 3, Q("3.75 in")),
    Sketcher.Constraint("DistanceX", 2, 3, 0, 3, Q("1.25 in")),
    Sketcher.Constraint("DistanceX", 4, 3, 1, 3, Q("1.225 in")),
    Sketcher.Constraint("DistanceY", -1, 1, 1, 3, Q("1.8 in")),
    Sketcher.Constraint("DistanceX", -1, 1, 2, 3, Q("0.7 in")),
    Sketcher.Constraint("DistanceX", 4, 3, 6, 3, Q("0.9055 in")),
    Sketcher.Constraint("DistanceY", 5, 3, 4, 3, Q("59 mm")),
    Sketcher.Constraint("DistanceY", 5, 3, -1, 1, Q("1.5061 in")),
])
pocket6 = doc.addObject("PartDesign::Pocket", "Pocket005")
body.addObject(pocket6)
pocket6.Profile = sketch11
pocket6.Length = Q("0.2 in")
pocket6.Reversed = True

doc.recompute()
